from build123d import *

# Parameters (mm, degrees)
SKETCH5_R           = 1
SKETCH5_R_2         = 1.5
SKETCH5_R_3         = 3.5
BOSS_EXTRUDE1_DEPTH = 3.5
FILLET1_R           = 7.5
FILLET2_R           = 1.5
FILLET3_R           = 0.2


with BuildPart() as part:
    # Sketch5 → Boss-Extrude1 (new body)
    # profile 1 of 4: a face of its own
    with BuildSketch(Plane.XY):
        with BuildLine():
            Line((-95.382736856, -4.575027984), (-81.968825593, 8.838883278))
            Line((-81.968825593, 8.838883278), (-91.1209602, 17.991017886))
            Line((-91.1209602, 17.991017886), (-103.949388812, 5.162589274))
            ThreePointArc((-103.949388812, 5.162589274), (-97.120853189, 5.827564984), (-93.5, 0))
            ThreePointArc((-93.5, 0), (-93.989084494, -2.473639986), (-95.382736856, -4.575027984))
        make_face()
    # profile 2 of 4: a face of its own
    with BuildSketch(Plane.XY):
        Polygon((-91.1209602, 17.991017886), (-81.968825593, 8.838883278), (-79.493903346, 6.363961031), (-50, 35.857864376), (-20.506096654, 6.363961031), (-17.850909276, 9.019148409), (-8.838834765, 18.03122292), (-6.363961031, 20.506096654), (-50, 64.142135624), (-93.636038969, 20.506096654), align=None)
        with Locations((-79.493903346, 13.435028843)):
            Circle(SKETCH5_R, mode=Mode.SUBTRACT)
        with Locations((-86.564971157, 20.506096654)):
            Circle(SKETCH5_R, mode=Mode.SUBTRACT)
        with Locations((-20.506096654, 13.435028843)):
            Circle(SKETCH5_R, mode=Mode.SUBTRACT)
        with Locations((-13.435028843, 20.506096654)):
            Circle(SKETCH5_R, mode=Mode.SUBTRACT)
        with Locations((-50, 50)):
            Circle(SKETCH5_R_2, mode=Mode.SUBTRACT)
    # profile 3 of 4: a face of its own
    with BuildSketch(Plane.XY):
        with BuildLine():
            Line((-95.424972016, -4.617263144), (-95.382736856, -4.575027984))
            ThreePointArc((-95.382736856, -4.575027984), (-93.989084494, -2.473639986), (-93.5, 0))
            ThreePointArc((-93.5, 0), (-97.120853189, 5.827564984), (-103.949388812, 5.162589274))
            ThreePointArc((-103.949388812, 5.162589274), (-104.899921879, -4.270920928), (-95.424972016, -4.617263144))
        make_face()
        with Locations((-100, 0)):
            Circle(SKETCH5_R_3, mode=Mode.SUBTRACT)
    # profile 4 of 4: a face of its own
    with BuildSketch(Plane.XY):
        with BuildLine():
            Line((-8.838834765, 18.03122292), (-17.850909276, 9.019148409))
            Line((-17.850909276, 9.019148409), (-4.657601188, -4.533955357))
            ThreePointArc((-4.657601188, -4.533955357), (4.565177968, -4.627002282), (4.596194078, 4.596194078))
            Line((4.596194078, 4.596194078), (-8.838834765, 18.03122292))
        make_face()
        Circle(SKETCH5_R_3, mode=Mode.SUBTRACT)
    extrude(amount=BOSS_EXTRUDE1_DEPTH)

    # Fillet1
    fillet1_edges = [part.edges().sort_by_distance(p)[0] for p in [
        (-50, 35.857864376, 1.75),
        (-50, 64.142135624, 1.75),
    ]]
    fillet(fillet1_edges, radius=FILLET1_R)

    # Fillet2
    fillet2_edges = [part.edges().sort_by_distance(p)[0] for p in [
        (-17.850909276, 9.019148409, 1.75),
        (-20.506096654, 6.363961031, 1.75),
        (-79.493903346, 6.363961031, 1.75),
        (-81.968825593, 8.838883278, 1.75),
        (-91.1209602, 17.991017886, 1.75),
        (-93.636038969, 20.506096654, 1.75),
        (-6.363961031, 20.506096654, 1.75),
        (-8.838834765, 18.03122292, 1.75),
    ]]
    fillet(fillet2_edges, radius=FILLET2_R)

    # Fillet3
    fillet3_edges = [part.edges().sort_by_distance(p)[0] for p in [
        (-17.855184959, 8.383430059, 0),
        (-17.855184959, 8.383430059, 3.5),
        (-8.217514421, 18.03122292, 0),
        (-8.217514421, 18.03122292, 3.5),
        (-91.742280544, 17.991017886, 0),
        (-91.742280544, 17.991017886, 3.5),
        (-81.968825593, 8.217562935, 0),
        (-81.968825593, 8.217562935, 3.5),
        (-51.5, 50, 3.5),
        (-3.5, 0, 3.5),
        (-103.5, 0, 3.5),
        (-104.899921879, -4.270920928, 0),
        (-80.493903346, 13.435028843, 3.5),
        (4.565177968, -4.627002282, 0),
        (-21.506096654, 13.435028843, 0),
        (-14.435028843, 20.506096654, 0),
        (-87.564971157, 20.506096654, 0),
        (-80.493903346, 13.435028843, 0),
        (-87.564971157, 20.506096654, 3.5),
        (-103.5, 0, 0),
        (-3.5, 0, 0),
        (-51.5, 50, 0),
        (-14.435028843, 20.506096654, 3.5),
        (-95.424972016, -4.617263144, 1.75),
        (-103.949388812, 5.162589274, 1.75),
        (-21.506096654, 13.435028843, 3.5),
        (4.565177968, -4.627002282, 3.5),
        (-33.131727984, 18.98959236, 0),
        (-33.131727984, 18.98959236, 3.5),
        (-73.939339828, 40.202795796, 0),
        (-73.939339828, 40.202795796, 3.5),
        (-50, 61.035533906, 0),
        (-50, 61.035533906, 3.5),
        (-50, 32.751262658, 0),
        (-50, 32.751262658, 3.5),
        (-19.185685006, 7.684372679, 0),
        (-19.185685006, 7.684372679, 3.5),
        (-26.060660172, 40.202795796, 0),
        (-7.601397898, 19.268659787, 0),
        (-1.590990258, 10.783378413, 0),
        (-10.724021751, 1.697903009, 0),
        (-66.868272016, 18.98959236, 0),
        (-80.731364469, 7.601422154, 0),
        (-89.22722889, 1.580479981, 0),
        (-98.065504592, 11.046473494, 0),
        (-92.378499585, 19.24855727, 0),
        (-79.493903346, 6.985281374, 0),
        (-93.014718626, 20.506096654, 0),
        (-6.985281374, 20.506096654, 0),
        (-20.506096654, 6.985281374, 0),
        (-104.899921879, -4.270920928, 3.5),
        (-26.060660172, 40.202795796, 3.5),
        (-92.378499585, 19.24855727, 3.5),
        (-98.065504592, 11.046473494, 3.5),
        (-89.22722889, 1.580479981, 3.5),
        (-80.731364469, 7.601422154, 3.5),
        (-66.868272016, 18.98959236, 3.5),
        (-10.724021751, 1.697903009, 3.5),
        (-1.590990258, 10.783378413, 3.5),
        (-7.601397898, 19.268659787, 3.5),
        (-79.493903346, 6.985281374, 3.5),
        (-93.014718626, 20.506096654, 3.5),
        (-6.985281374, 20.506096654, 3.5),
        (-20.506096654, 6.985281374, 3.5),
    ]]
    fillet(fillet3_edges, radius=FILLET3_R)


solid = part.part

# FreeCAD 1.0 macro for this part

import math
import FreeCAD as App
import Part
import Sketcher
from FreeCAD import Vector


def edges_at(feature, points):
    """Names of the edges that pass closest to the given points."""
    edges = feature.Shape.Edges
    near = lambda p: min(range(len(edges)), key=lambda i: edges[i].distToShape(Part.Vertex(*p))[0])
    return sorted({f"Edge{near(p) + 1}" for p in points})

doc = App.newDocument("Part")
params = doc.addObject("Spreadsheet::Sheet", "Params")
for row, (alias, value) in enumerate([
    ("sketch1_diameter", "3 mm"),
    ("sketch1_diameter2", "2 mm"),
    ("sketch1_diameter3", "2 mm"),
    ("sketch1_diameter4", "2 mm"),
    ("sketch1_diameter5", "2 mm"),
    ("pad1_length", "3.5 mm"),
    ("fillet_radius", "7.5 mm"),
    ("fillet2_radius", "1.5 mm"),
    ("fillet3_radius", "0.2 mm"),
], start=1):
    params.set(f"A{row}", alias)
    params.set(f"B{row}", "=" + value)
    params.setAlias(f"B{row}", alias)

body = doc.addObject("PartDesign::Body", "Body")

sketch1 = body.newObject("Sketcher::SketchObject", "Sketch")
sketch1.AttachmentSupport = (doc.getObject("XY_Plane"), [""])
sketch1.MapMode = "FlatFace"
sketch1.addGeometry([
    Part.LineSegment(Vector(-95.382737, -4.575028, 0), Vector(-81.968826, 8.838883, 0)),
    Part.LineSegment(Vector(-81.968826, 8.838883, 0), Vector(-79.493903, 6.363961, 0)),
    Part.LineSegment(Vector(-79.493903, 6.363961, 0), Vector(-50, 35.857864, 0)),
    Part.LineSegment(Vector(-50, 35.857864, 0), Vector(-20.506097, 6.363961, 0)),
    Part.LineSegment(Vector(-20.506097, 6.363961, 0), Vector(-17.850909, 9.019148, 0)),
    Part.LineSegment(Vector(-17.850909, 9.019148, 0), Vector(-4.657601, -4.533955, 0)),
    Part.ArcOfCircle(Part.Circle(Vector(0, 0, 0), Vector(0, 0, 1), 6.5), math.radians(-135.770703), math.radians(45)),
    Part.LineSegment(Vector(4.596194, 4.596194, 0), Vector(-8.838835, 18.031223, 0)),
    Part.LineSegment(Vector(-8.838835, 18.031223, 0), Vector(-6.363961, 20.506097, 0)),
    Part.LineSegment(Vector(-6.363961, 20.506097, 0), Vector(-50, 64.142136, 0)),
    Part.LineSegment(Vector(-50, 64.142136, 0), Vector(-93.636039, 20.506097, 0)),
    Part.LineSegment(Vector(-93.636039, 20.506097, 0), Vector(-91.12096, 17.991018, 0)),
    Part.LineSegment(Vector(-91.12096, 17.991018, 0), Vector(-103.949389, 5.162589, 0)),
    Part.ArcOfCircle(Part.Circle(Vector(-100, 0, 0), Vector(0, 0, 1), 6.5), math.radians(127.416045), math.radians(314.736749)),
    Part.LineSegment(Vector(-95.424972, -4.617263, 0), Vector(-95.382737, -4.575028, 0)),
    Part.Circle(Vector(-50, 50, 0), Vector(0, 0, 1), 1.5),
    Part.Circle(Vector(-79.493903, 13.435029, 0), Vector(0, 0, 1), 1),
    Part.Circle(Vector(-86.564971, 20.506097, 0), Vector(0, 0, 1), 1),
    Part.Circle(Vector(-20.506097, 13.435029, 0), Vector(0, 0, 1), 1),
    Part.Circle(Vector(-13.435029, 20.506097, 0), Vector(0, 0, 1), 1),
    Part.Circle(Vector(-100, 0, 0), Vector(0, 0, 1), 3.5),
    Part.Circle(Vector(0, 0, 0), Vector(0, 0, 1), 3.5),
], False)
sketch1.addConstraint([
    Sketcher.Constraint("Coincident", 0, 2, 1, 1),
    Sketcher.Constraint("Coincident", 1, 2, 2, 1),
    Sketcher.Constraint("Coincident", 2, 2, 3, 1),
    Sketcher.Constraint("Coincident", 3, 2, 4, 1),
    Sketcher.Constraint("Coincident", 4, 2, 5, 1),
    Sketcher.Constraint("Coincident", 5, 2, 6, 1),
    Sketcher.Constraint("Coincident", 6, 2, 7, 1),
    Sketcher.Constraint("Coincident", 7, 2, 8, 1),
    Sketcher.Constraint("Coincident", 8, 2, 9, 1),
    Sketcher.Constraint("Coincident", 9, 2, 10, 1),
    Sketcher.Constraint("Coincident", 10, 2, 11, 1),
    Sketcher.Constraint("Coincident", 11, 2, 12, 1),
    Sketcher.Constraint("Coincident", 12, 2, 13, 1),
    Sketcher.Constraint("Coincident", 13, 2, 14, 1),
    Sketcher.Constraint("Coincident", 14, 2, 0, 1),
    Sketcher.Constraint("Coincident", 6, 3, -1, 1),
    Sketcher.Constraint("Coincident", 21, 3, -1, 1),
    Sketcher.Constraint("Coincident", 20, 3, 13, 3),
    Sketcher.Constraint("PointOnObject", 13, 3, -1),
    Sketcher.Constraint("Diameter", 15, 3.0),
    Sketcher.Constraint("Diameter", 16, 2.0),
    Sketcher.Constraint("Diameter", 17, 2.0),
    Sketcher.Constraint("Diameter", 18, 2.0),
    Sketcher.Constraint("Diameter", 19, 2.0),
    Sketcher.Constraint("Diameter", 20, 7.0),
    Sketcher.Constraint("Diameter", 21, 7.0),
    Sketcher.Constraint("Radius", 6, 6.5),
    Sketcher.Constraint("Radius", 13, 6.5),
    Sketcher.Constraint("Distance", 7, 19.0),
    Sketcher.Constraint("DistanceX", 13, 3, -1, 1, 100.0),
    Sketcher.Constraint("DistanceX", 15, 3, -1, 1, 50.0),
    Sketcher.Constraint("DistanceY", -1, 1, 15, 3, 50.0),
    Sketcher.Constraint("DistanceX", 2, 2, -1, 1, 50.0),
    Sketcher.Constraint("DistanceX", 9, 2, -1, 1, 50.0),
    Sketcher.Constraint("Distance", 8, 3.5),
    Sketcher.Constraint("DistanceX", 5, 2, -1, 1, 4.657601),
    Sketcher.Constraint("Distance", 1, 3.500069),
    Sketcher.Constraint("Distance", 2, 41.710678),
    Sketcher.Constraint("Distance", 3, 41.710678),
    Sketcher.Constraint("Distance", 5, 18.91428),
    Sketcher.Constraint("Distance", 9, 61.710678),
    Sketcher.Constraint("Distance", 10, 61.710678),
    Sketcher.Constraint("Distance", 11, 3.556859),
    Sketcher.Constraint("Distance", 14, 0.05973),
    Sketcher.Constraint("DistanceY", -1, 1, 16, 3, 13.435029),
    Sketcher.Constraint("DistanceX", 17, 3, -1, 1, 86.564971),
    Sketcher.Constraint("DistanceY", -1, 1, 18, 3, 13.435029),
    Sketcher.Constraint("DistanceX", 19, 3, -1, 1, 13.435029),
    Sketcher.Constraint("DistanceY", -1, 1, 1, 2, 6.363961),
    Sketcher.Constraint("DistanceY", -1, 1, 3, 2, 6.363961),
    Sketcher.Constraint("DistanceX", 4, 2, -1, 1, 17.850909),
    Sketcher.Constraint("DistanceX", 8, 2, -1, 1, 6.363961),
    Sketcher.Constraint("DistanceX", 10, 2, -1, 1, 93.636039),
    Sketcher.Constraint("DistanceX", 11, 2, -1, 1, 91.12096),
    Sketcher.Constraint("DistanceX", 12, 2, -1, 1, 103.949389),
    Sketcher.Constraint("DistanceY", 4, 2, 19, 3, 11.486948),
    Sketcher.Constraint("DistanceY", 5, 2, 6, 2, 9.130149),
    Sketcher.Constraint("DistanceX", 18, 3, 7, 2, 11.667262),
    Sketcher.Constraint("DistanceX", 3, 2, 7, 2, 11.667262),
    Sketcher.Constraint("DistanceY", 3, 2, 7, 2, 11.667262),
    Sketcher.Constraint("DistanceY", 17, 3, 9, 2, 43.636039),
    Sketcher.Constraint("DistanceX", 13, 2, 1, 2, 15.931069),
    Sketcher.Constraint("DistanceX", 12, 2, 14, 2, 8.566652),
    Sketcher.Constraint("DistanceX", 14, 2, 0, 2, 13.413911),
    Sketcher.Constraint("DistanceX", 16, 3, -1, 1, 79.493903),
])
sketch1.setExpression("Constraints[19]", "Params.sketch1_diameter")
sketch1.setExpression("Constraints[20]", "Params.sketch1_diameter2")
sketch1.setExpression("Constraints[21]", "Params.sketch1_diameter3")
sketch1.setExpression("Constraints[22]", "Params.sketch1_diameter4")
sketch1.setExpression("Constraints[23]", "Params.sketch1_diameter5")
pad1 = body.newObject("PartDesign::Pad", "Pad")
pad1.Profile = sketch1
pad1.setExpression("Length", "Params.pad1_length")
doc.recompute()

fillet = body.newObject("PartDesign::Fillet", "Fillet")
fillet.Base = (pad1, edges_at(pad1, [(-50, 35.858, 1.75), (-50, 64.142, 1.75)]))
fillet.setExpression("Radius", "Params.fillet_radius")
doc.recompute()

fillet2 = body.newObject("PartDesign::Fillet", "Fillet001")
fillet2.Base = (fillet, edges_at(fillet, [
    (-17.851, 9.019, 1.75),
    (-20.506, 6.364, 1.75),
    (-79.494, 6.364, 1.75),
    (-81.969, 8.839, 1.75),
    (-91.121, 17.991, 1.75),
    (-93.636, 20.506, 1.75),
    (-6.364, 20.506, 1.75),
    (-8.839, 18.031, 1.75),
]))
fillet2.setExpression("Radius", "Params.fillet2_radius")
doc.recompute()

fillet3 = body.newObject("PartDesign::Fillet", "Fillet002")
fillet3.Base = (fillet2, edges_at(fillet2, [
    (-17.855, 8.383, 0),
    (-17.855, 8.383, 3.5),
    (-8.218, 18.031, 0),
    (-8.218, 18.031, 3.5),
    (-91.742, 17.991, 0),
    (-91.742, 17.991, 3.5),
    (-81.969, 8.218, 0),
    (-81.969, 8.218, 3.5),
    (-51.5, 50, 3.5),
    (-3.5, 0, 3.5),
    (-103.5, 0, 3.5),
    (-104.9, -4.271, 0),
    (-80.494, 13.435, 3.5),
    (4.565, -4.627, 0),
    (-21.506, 13.435, 0),
    (-14.435, 20.506, 0),
    (-87.565, 20.506, 0),
    (-80.494, 13.435, 0),
    (-87.565, 20.506, 3.5),
    (-103.5, 0, 0),
    (-3.5, 0, 0),
    (-51.5, 50, 0),
    (-14.435, 20.506, 3.5),
    (-95.425, -4.617, 1.75),
    (-103.949, 5.163, 1.75),
    (-21.506, 13.435, 3.5),
    (4.565, -4.627, 3.5),
    (-33.132, 18.99, 0),
    (-33.132, 18.99, 3.5),
    (-73.939, 40.203, 0),
    (-73.939, 40.203, 3.5),
    (-50, 61.036, 0),
    (-50, 61.036, 3.5),
    (-50, 32.751, 0),
    (-50, 32.751, 3.5),
    (-19.186, 7.684, 0),
    (-19.186, 7.684, 3.5),
    (-26.061, 40.203, 0),
    (-7.601, 19.269, 0),
    (-1.591, 10.783, 0),
    (-10.724, 1.698, 0),
    (-66.868, 18.99, 0),
    (-80.731, 7.601, 0),
    (-89.206, 1.602, 0),
    (-98.066, 11.046, 0),
    (-92.378, 19.249, 0),
    (-79.494, 6.985, 0),
    (-93.015, 20.506, 0),
    (-6.985, 20.506, 0),
    (-20.506, 6.985, 0),
    (-104.9, -4.271, 3.5),
    (-26.061, 40.203, 3.5),
    (-92.378, 19.249, 3.5),
    (-98.066, 11.046, 3.5),
    (-89.206, 1.602, 3.5),
    (-80.731, 7.601, 3.5),
    (-66.868, 18.99, 3.5),
    (-10.724, 1.698, 3.5),
    (-1.591, 10.783, 3.5),
    (-7.601, 19.269, 3.5),
    (-79.494, 6.985, 3.5),
    (-93.015, 20.506, 3.5),
    (-6.985, 20.506, 3.5),
    (-20.506, 6.985, 3.5),
]))
fillet3.setExpression("Radius", "Params.fillet3_radius")

doc.recompute()
